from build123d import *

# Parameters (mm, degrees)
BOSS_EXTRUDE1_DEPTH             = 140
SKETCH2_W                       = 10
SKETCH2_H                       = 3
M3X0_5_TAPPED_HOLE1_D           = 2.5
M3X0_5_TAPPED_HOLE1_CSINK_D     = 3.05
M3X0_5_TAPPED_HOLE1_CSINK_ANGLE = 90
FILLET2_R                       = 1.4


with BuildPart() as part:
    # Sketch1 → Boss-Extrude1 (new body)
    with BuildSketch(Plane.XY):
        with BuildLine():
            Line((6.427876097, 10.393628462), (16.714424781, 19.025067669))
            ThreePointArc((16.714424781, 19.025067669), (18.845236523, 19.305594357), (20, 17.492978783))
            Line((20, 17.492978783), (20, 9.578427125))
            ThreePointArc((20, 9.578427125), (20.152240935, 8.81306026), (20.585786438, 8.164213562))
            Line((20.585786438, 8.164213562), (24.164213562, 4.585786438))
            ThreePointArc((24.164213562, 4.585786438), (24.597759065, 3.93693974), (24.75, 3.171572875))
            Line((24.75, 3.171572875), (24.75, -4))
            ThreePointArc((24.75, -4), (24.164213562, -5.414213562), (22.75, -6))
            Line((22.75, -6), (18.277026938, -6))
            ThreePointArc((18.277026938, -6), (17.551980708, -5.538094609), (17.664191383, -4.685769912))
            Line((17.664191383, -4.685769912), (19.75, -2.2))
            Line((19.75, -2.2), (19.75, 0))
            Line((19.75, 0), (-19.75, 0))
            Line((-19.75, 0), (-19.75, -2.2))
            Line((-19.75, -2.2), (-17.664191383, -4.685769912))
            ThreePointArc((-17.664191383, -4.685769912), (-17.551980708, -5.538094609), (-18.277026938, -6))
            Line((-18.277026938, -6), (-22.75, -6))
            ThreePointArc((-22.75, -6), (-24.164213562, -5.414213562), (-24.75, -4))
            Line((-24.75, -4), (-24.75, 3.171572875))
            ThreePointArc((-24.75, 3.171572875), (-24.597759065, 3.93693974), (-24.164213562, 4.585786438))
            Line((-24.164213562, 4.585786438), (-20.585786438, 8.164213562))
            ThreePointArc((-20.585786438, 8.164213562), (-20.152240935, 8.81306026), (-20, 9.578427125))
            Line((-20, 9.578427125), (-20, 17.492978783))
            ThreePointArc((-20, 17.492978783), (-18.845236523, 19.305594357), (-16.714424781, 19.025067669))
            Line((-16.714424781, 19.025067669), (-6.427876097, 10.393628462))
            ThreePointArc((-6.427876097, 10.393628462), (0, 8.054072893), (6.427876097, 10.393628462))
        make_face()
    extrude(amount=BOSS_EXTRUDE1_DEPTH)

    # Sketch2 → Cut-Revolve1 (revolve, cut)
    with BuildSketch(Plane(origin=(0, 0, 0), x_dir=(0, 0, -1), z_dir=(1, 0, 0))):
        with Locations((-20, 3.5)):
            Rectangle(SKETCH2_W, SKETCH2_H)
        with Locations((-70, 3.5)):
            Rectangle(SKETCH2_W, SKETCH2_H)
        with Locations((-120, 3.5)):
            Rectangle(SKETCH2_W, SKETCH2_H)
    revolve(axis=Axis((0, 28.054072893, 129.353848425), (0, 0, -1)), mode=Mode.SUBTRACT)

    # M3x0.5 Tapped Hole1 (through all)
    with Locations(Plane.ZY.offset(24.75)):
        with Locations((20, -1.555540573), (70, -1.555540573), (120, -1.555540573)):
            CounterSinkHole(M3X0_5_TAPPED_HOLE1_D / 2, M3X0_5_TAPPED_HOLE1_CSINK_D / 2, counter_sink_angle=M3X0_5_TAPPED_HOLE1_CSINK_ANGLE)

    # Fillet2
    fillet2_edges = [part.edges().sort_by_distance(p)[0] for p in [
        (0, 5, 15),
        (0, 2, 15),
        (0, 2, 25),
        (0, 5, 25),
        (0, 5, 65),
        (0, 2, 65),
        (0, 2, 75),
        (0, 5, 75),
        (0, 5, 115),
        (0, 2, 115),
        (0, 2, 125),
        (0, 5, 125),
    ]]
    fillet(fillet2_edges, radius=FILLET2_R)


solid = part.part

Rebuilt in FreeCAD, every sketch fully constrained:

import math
import FreeCAD as App
import Part
import Sketcher
Q = App.Units.Quantity


def edges_at(feature, points):
    """Names of the edges that pass closest to the given points."""
    edges = feature.Shape.Edges
    near = lambda p: min(range(len(edges)), key=lambda i: edges[i].distToShape(Part.Vertex(*p))[0])
    return sorted({f"Edge{near(p) + 1}" for p in points})


def add_polygon(sketch, points):
    """Adds a closed chain of lines whose ends are joined by coincident constraints."""
    first, n = sketch.GeometryCount, len(points)
    for a, b in zip(points, points[1:] + points[:1]):
        sketch.addGeometry(Part.LineSegment(App.Vector(*a, 0), App.Vector(*b, 0)), False)
    for i in range(n):
        sketch.addConstraint(Sketcher.Constraint("Coincident", first + i, 2, first + (i + 1) % n, 1))

doc = App.newDocument("Part")
body = doc.addObject("PartDesign::Body", "Body")

# Sketch on XY plane
sketch1 = body.newObject("Sketcher::SketchObject", "Sketch")
sketch1.AttachmentSupport = (doc.getObject("XY_Plane"), [""])
sketch1.MapMode = "FlatFace"
sketch1.addGeometry(Part.LineSegment(App.Vector(16.7, 19, 0), App.Vector(6.4, 10.4, 0)), False)
sketch1.addGeometry(Part.ArcOfCircle(Part.Circle(App.Vector(0, 18.1, 0), App.Vector(0, 0, 1), 10), math.radians(-130), math.radians(-50)), False)
sketch1.addGeometry(Part.LineSegment(App.Vector(-6.4, 10.4, 0), App.Vector(-16.7, 19, 0)), False)
sketch1.addGeometry(Part.ArcOfCircle(Part.Circle(App.Vector(-18, 17.5, 0), App.Vector(0, 0, 1), 2), math.radians(50), math.radians(180)), False)
sketch1.addGeometry(Part.LineSegment(App.Vector(-20, 17.5, 0), App.Vector(-20, 9.6, 0)), False)
sketch1.addGeometry(Part.ArcOfCircle(Part.Circle(App.Vector(-22, 9.6, 0), App.Vector(0, 0, 1), 2), math.radians(-45), math.radians(0)), False)
sketch1.addGeometry(Part.LineSegment(App.Vector(-20.6, 8.2, 0), App.Vector(-24.2, 4.6, 0)), False)
sketch1.addGeometry(Part.ArcOfCircle(Part.Circle(App.Vector(-22.8, 3.2, 0), App.Vector(0, 0, 1), 2), math.radians(135), math.radians(180)), False)
sketch1.addGeometry(Part.LineSegment(App.Vector(-24.8, 3.2, 0), App.Vector(-24.8, -4, 0)), False)
sketch1.addGeometry(Part.ArcOfCircle(Part.Circle(App.Vector(-22.7, -4, 0), App.Vector(0, 0, 1), 2), math.radians(-180), math.radians(-90)), False)
sketch1.addGeometry(Part.LineSegment(App.Vector(-22.8, -6, 0), App.Vector(-18.3, -6, 0)), False)
sketch1.addGeometry(Part.ArcOfCircle(Part.Circle(App.Vector(-18.3, -5.2, 0), App.Vector(0, 0, 1), 0.8), math.radians(-90), math.radians(40)), False)
sketch1.addGeometry(Part.LineSegment(App.Vector(-17.7, -4.7, 0), App.Vector(-19.8, -2.2, 0)), False)
sketch1.addGeometry(Part.LineSegment(App.Vector(-19.8, -2.2, 0), App.Vector(-19.8, 0, 0)), False)
sketch1.addGeometry(Part.LineSegment(App.Vector(-19.8, 0, 0), App.Vector(19.8, 0, 0)), False)
sketch1.addGeometry(Part.LineSegment(App.Vector(19.8, 0, 0), App.Vector(19.8, -2.2, 0)), False)
sketch1.addGeometry(Part.LineSegment(App.Vector(19.8, -2.2, 0), App.Vector(17.7, -4.7, 0)), False)
sketch1.addGeometry(Part.ArcOfCircle(Part.Circle(App.Vector(18.3, -5.2, 0), App.Vector(0, 0, 1), 0.8), math.radians(140), math.radians(270)), False)
sketch1.addGeometry(Part.LineSegment(App.Vector(18.3, -6, 0), App.Vector(22.8, -6, 0)), False)
sketch1.addGeometry(Part.ArcOfCircle(Part.Circle(App.Vector(22.7, -4, 0), App.Vector(0, 0, 1), 2), math.radians(-90), math.radians(0)), False)
sketch1.addGeometry(Part.LineSegment(App.Vector(24.8, -4, 0), App.Vector(24.8, 3.2, 0)), False)
sketch1.addGeometry(Part.ArcOfCircle(Part.Circle(App.Vector(22.8, 3.2, 0), App.Vector(0, 0, 1), 2), math.radians(0), math.radians(45)), False)
sketch1.addGeometry(Part.LineSegment(App.Vector(24.2, 4.6, 0), App.Vector(20.6, 8.2, 0)), False)
sketch1.addGeometry(Part.ArcOfCircle(Part.Circle(App.Vector(22, 9.6, 0), App.Vector(0, 0, 1), 2), math.radians(180), math.radians(225)), False)
sketch1.addGeometry(Part.LineSegment(App.Vector(20, 9.6, 0), App.Vector(20, 17.5, 0)), False)
sketch1.addGeometry(Part.ArcOfCircle(Part.Circle(App.Vector(18, 17.5, 0), App.Vector(0, 0, 1), 2), math.radians(0), math.radians(130)), False)
sketch1.addConstraint(Sketcher.Constraint("Tangent", 0, 2, 1, 2))
sketch1.addConstraint(Sketcher.Constraint("Tangent", 1, 1, 2, 1))
sketch1.addConstraint(Sketcher.Constraint("Tangent", 2, 2, 3, 1))
sketch1.addConstraint(Sketcher.Constraint("Tangent", 3, 2, 4, 1))
sketch1.addConstraint(Sketcher.Constraint("Tangent", 4, 2, 5, 2))
sketch1.addConstraint(Sketcher.Constraint("Tangent", 5, 1, 6, 1))
sketch1.addConstraint(Sketcher.Constraint("Tangent", 6, 2, 7, 1))
sketch1.addConstraint(Sketcher.Constraint("Tangent", 7, 2, 8, 1))
sketch1.addConstraint(Sketcher.Constraint("Tangent", 8, 2, 9, 1))
sketch1.addConstraint(Sketcher.Constraint("Tangent", 9, 2, 10, 1))
sketch1.addConstraint(Sketcher.Constraint("Tangent", 10, 2, 11, 1))
sketch1.addConstraint(Sketcher.Constraint("Tangent", 11, 2, 12, 1))
sketch1.addConstraint(Sketcher.Constraint("Coincident", 12, 2, 13, 1))
sketch1.addConstraint(Sketcher.Constraint("Coincident", 13, 2, 14, 1))
sketch1.addConstraint(Sketcher.Constraint("Coincident", 14, 2, 15, 1))
sketch1.addConstraint(Sketcher.Constraint("Coincident", 15, 2, 16, 1))
sketch1.addConstraint(Sketcher.Constraint("Tangent", 16, 2, 17, 1))
sketch1.addConstraint(Sketcher.Constraint("Tangent", 17, 2, 18, 1))
sketch1.addConstraint(Sketcher.Constraint("Tangent", 18, 2, 19, 1))
sketch1.addConstraint(Sketcher.Constraint("Tangent", 19, 2, 20, 1))
sketch1.addConstraint(Sketcher.Constraint("Tangent", 20, 2, 21, 1))
sketch1.addConstraint(Sketcher.Constraint("Tangent", 21, 2, 22, 1))
sketch1.addConstraint(Sketcher.Constraint("Tangent", 22, 2, 23, 2))
sketch1.addConstraint(Sketcher.Constraint("Tangent", 23, 1, 24, 1))
sketch1.addConstraint(Sketcher.Constraint("Tangent", 24, 2, 25, 1))
sketch1.addConstraint(Sketcher.Constraint("Tangent", 25, 2, 0, 1))
sketch1.addConstraint(Sketcher.Constraint("Vertical", 4))
sketch1.addConstraint(Sketcher.Constraint("Vertical", 8))
sketch1.addConstraint(Sketcher.Constraint("Horizontal", 10))
sketch1.addConstraint(Sketcher.Constraint("Vertical", 13))
sketch1.addConstraint(Sketcher.Constraint("Horizontal", 14))
sketch1.addConstraint(Sketcher.Constraint("Vertical", 15))
sketch1.addConstraint(Sketcher.Constraint("Horizontal", 18))
sketch1.addConstraint(Sketcher.Constraint("Vertical", 20))
sketch1.addConstraint(Sketcher.Constraint("Vertical", 24))
sketch1.addConstraint(Sketcher.Constraint("Equal", 3, 5))
sketch1.addConstraint(Sketcher.Constraint("Equal", 5, 7))
sketch1.addConstraint(Sketcher.Constraint("Equal", 7, 9))
sketch1.addConstraint(Sketcher.Constraint("Equal", 11, 17))
sketch1.addConstraint(Sketcher.Constraint("Equal", 9, 19))
sketch1.addConstraint(Sketcher.Constraint("Equal", 19, 21))
sketch1.addConstraint(Sketcher.Constraint("Equal", 21, 23))
sketch1.addConstraint(Sketcher.Constraint("Equal", 23, 25))
sketch1.addConstraint(Sketcher.Constraint("Symmetric", 13, 2, 14, 2, -1, 1))
sketch1.addConstraint(Sketcher.Constraint("Symmetric", 11, 3, 17, 3, -2))
sketch1.addConstraint(Sketcher.Constraint("Symmetric", 7, 3, 21, 3, -2))
sketch1.addConstraint(Sketcher.Constraint("Symmetric", 5, 3, 23, 3, -2))
sketch1.addConstraint(Sketcher.Constraint("Symmetric", 0, 2, 1, 1, -2))
sketch1.addConstraint(Sketcher.Constraint("Perpendicular", 0, 12))
sketch1.addConstraint(Sketcher.Constraint("Perpendicular", 2, 16))
sketch1.addConstraint(Sketcher.Constraint("Perpendicular", 6, 22))
sketch1.addConstraint(Sketcher.Constraint("Radius", 1, 10.0))
sketch1.addConstraint(Sketcher.Constraint("Radius", 3, 2.0))
sketch1.addConstraint(Sketcher.Constraint("Radius", 11, 0.8))
sketch1.addConstraint(Sketcher.Constraint("Angle", 0, Q("-140 deg")))
sketch1.addConstraint(Sketcher.Constraint("DistanceX", 14, 1, 14, 2, 39.5))
sketch1.addConstraint(Sketcher.Constraint("DistanceY", 13, 1, 13, 2, 2.2))
sketch1.addConstraint(Sketcher.Constraint("DistanceX", 3, 3, -1, 1, 18.0))
sketch1.addConstraint(Sketcher.Constraint("DistanceY", 9, 3, -1, 1, 4.0))
sketch1.addConstraint(Sketcher.Constraint("DistanceX", 9, 3, 12, 2, 3.0))
sketch1.addConstraint(Sketcher.Constraint("DistanceY", 4, 2, 4, 1, 7.914552))
sketch1.addConstraint(Sketcher.Constraint("DistanceY", 8, 2, 8, 1, 7.171573))
pad1 = body.newObject("PartDesign::Pad", "Pad")
pad1.Profile = sketch1
pad1.Length = 140

# Sketch on YZ plane
sketch2 = body.newObject("Sketcher::SketchObject", "Sketch001")
sketch2.AttachmentSupport = (doc.getObject("YZ_Plane"), [""])
sketch2.MapMode = "FlatFace"
add_polygon(sketch2, [(5, 25), (2, 25), (2, 15), (5, 15)])  # lines 0-3
add_polygon(sketch2, [(5, 75), (2, 75), (2, 65), (5, 65)])  # lines 4-7
add_polygon(sketch2, [(5, 125), (2, 125), (2, 115), (5, 115)])  # lines 8-11
sketch2.addGeometry(Part.LineSegment(App.Vector(28.1, 125, 0), App.Vector(28.1, 15, 0)), True)  # axis
sketch2.addConstraint(Sketcher.Constraint("Horizontal", 0))
sketch2.addConstraint(Sketcher.Constraint("Vertical", 1))
sketch2.addConstraint(Sketcher.Constraint("Horizontal", 2))
sketch2.addConstraint(Sketcher.Constraint("Vertical", 3))
sketch2.addConstraint(Sketcher.Constraint("Horizontal", 4))
sketch2.addConstraint(Sketcher.Constraint("Vertical", 5))
sketch2.addConstraint(Sketcher.Constraint("Horizontal", 6))
sketch2.addConstraint(Sketcher.Constraint("Vertical", 7))
sketch2.addConstraint(Sketcher.Constraint("Horizontal", 8))
sketch2.addConstraint(Sketcher.Constraint("Vertical", 9))
sketch2.addConstraint(Sketcher.Constraint("Horizontal", 10))
sketch2.addConstraint(Sketcher.Constraint("Vertical", 11))
sketch2.addConstraint(Sketcher.Constraint("Vertical", 12))
sketch2.addConstraint(Sketcher.Constraint("Horizontal", 11, 2, 12, 1))
sketch2.addConstraint(Sketcher.Constraint("Horizontal", 2, 2, 12, 2))
sketch2.addConstraint(Sketcher.Constraint("Vertical", 1, 2, 4, 2))
sketch2.addConstraint(Sketcher.Constraint("Vertical", 3, 2, 6, 2))
sketch2.addConstraint(Sketcher.Constraint("Vertical", 5, 2, 8, 2))
sketch2.addConstraint(Sketcher.Constraint("Vertical", 7, 2, 10, 2))
sketch2.addConstraint(Sketcher.Constraint("Equal", 3, 5))
sketch2.addConstraint(Sketcher.Constraint("Equal", 7, 9))
sketch2.addConstraint(Sketcher.Constraint("DistanceX", 0, 2, 0, 1, 3.0))
sketch2.addConstraint(Sketcher.Constraint("DistanceY", 1, 2, 1, 1, 10.0))
sketch2.addConstraint(Sketcher.Constraint("DistanceY", 12, 2, 12, 1, 110.0))
sketch2.addConstraint(Sketcher.Constraint("DistanceX", -1, 1, 0, 2, 2.0))
sketch2.addConstraint(Sketcher.Constraint("DistanceY", -1, 1, 0, 2, 25.0))
sketch2.addConstraint(Sketcher.Constraint("DistanceY", -1, 1, 4, 2, 75.0))
sketch2.addConstraint(Sketcher.Constraint("DistanceX", -1, 1, 12, 1, 28.054073))
groove = body.newObject("PartDesign::Groove", "Groove")
groove.Profile = sketch2
groove.ReferenceAxis = (sketch2, ["Axis0"])
groove.Angle = 360

# Sketch on YZ plane
sketch3 = body.newObject("Sketcher::SketchObject", "Sketch002")
sketch3.AttachmentSupport = (doc.getObject("YZ_Plane"), [""])
sketch3.MapMode = "FlatFace"
sketch3.AttachmentOffset = App.Placement(App.Vector(0, 0, -24.75), App.Rotation())
sketch3.addGeometry(Part.Circle(App.Vector(-1.6, 20, 0), App.Vector(0, 0, 1), 1.2), False)
sketch3.addGeometry(Part.Circle(App.Vector(-1.6, 70, 0), App.Vector(0, 0, 1), 1.2), False)
sketch3.addGeometry(Part.Circle(App.Vector(-1.6, 120, 0), App.Vector(0, 0, 1), 1.2), False)
sketch3.addConstraint(Sketcher.Constraint("Equal", 0, 1))
sketch3.addConstraint(Sketcher.Constraint("Equal", 1, 2))
sketch3.addConstraint(Sketcher.Constraint("Vertical", 0, 3, 1, 3))
sketch3.addConstraint(Sketcher.Constraint("Vertical", 1, 3, 2, 3))
sketch3.addConstraint(Sketcher.Constraint("Diameter", 0, 2.5))
sketch3.addConstraint(Sketcher.Constraint("DistanceY", -1, 1, 0, 3, 20.0))
sketch3.addConstraint(Sketcher.Constraint("DistanceY", -1, 1, 1, 3, 70.0))
sketch3.addConstraint(Sketcher.Constraint("DistanceY", -1, 1, 2, 3, 120.0))
sketch3.addConstraint(Sketcher.Constraint("DistanceX", 0, 3, -1, 1, 1.555541))
doc.recompute()
hole = body.newObject("PartDesign::Hole", "Hole")
hole.Profile = sketch3
hole.ThreadType = "None"
hole.Diameter = 2.5
hole.DepthType = "ThroughAll"
hole.HoleCutType = "Countersink"
hole.HoleCutDiameter = 3.05
hole.HoleCutCountersinkAngle = 90
hole.Reversed = True
doc.recompute()

fillet = body.newObject("PartDesign::Fillet", "Fillet")
fillet.Base = (hole, edges_at(hole, [
    (0, 5, 15),
    (0, 2, 15),
    (0, 2, 25),
    (0, 5, 25),
    (0, 5, 65),
    (0, 2, 65),
    (0, 2, 75),
    (0, 5, 75),
    (0, 5, 115),
    (0, 2, 115),
    (0, 2, 125),
    (0, 5, 125),
]))
fillet.Radius = 1.4

doc.recompute()
